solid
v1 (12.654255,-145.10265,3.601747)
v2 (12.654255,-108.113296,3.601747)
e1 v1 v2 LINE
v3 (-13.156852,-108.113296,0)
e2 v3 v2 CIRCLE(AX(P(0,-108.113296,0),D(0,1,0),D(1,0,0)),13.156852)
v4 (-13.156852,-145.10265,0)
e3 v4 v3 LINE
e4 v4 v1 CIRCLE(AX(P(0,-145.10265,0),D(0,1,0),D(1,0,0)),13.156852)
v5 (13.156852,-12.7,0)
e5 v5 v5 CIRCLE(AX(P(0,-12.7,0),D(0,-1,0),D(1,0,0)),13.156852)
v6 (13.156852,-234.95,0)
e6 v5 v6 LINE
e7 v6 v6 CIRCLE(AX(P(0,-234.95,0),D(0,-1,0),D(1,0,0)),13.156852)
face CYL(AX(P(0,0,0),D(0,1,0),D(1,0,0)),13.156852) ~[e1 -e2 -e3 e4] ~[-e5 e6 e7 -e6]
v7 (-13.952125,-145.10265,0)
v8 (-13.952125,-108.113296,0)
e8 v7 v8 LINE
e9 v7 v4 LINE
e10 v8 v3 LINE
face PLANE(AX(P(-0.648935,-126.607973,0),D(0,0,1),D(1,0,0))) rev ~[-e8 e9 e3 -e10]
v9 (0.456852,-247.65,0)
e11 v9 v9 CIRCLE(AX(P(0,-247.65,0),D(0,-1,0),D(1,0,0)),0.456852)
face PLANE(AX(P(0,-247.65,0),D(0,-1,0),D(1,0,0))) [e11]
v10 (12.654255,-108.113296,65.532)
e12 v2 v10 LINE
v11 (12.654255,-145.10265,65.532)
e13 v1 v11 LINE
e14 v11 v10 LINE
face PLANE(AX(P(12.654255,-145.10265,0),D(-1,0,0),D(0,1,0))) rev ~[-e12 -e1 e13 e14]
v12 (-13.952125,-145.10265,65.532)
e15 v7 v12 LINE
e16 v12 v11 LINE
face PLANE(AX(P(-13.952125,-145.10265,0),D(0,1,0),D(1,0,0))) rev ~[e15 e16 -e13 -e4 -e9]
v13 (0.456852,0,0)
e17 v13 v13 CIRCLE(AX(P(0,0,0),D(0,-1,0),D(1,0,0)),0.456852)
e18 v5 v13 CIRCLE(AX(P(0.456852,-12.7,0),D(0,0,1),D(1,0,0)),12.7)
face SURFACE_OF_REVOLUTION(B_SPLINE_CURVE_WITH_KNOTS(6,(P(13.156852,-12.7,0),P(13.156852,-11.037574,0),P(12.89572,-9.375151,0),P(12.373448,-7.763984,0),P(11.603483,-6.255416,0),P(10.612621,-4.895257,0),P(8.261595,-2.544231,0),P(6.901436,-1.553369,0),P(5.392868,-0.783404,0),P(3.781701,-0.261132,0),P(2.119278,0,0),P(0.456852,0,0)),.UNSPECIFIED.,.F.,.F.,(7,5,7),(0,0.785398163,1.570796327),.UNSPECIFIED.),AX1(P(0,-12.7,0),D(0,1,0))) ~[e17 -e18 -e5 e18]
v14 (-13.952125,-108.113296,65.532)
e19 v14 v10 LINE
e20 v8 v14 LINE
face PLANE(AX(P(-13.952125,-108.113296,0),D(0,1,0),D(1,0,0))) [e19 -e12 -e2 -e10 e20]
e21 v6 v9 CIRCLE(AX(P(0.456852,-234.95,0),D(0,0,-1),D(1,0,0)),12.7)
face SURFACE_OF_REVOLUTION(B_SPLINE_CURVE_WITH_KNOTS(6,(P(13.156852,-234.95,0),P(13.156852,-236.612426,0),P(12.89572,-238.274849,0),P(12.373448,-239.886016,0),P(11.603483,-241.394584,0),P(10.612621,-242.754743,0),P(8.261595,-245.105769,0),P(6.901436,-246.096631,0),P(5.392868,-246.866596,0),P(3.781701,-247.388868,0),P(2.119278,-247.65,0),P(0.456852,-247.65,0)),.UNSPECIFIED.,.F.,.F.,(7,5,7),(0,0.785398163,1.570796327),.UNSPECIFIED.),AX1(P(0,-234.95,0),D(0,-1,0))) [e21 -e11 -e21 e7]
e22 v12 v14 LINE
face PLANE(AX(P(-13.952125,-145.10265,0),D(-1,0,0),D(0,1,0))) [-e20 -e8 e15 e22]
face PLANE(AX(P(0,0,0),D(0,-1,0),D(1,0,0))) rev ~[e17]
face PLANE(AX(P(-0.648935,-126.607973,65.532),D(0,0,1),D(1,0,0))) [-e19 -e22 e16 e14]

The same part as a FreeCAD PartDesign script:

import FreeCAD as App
import Part
import Sketcher

V = App.Vector
Q = App.Units.Quantity


def edges_at(feature, points):
    """Names of the edges that pass closest to the given points."""
    edges = feature.Shape.Edges
    near = lambda p: min(range(len(edges)), key=lambda i: edges[i].distToShape(Part.Vertex(*p))[0])
    return sorted({f"Edge{near(p) + 1}" for p in points})


def add_polygon(sketch, points):
    """Adds a closed chain of lines whose ends are joined by coincident constraints."""
    first, n = sketch.GeometryCount, len(points)
    for a, b in zip(points, points[1:] + points[:1]):
        sketch.addGeometry(Part.LineSegment(App.Vector(*a, 0), App.Vector(*b, 0)), False)
    for i in range(n):
        sketch.addConstraint(Sketcher.Constraint("Coincident", first + i, 2, first + (i + 1) % n, 1))

doc = App.newDocument("Part")
body = doc.addObject("PartDesign::Body", "Body")

sketch1 = body.newObject("Sketcher::SketchObject", "Sketch")
sketch1.AttachmentSupport = (doc.getObject("XZ_Plane"), [""])
sketch1.MapMode = "FlatFace"
sketch1.addGeometry(Part.Circle(V(0, 0, 0), V(0, 0, 1), 13), False)
sketch1.addConstraint([
    Sketcher.Constraint("Coincident", 0, 3, -1, 1),
    Sketcher.Constraint("Diameter", 0, Q("26.313704 mm")),
])
pad1 = body.newObject("PartDesign::Pad", "Pad")
pad1.Profile = sketch1
pad1.Length = Q("9.75 in")

sketch2 = body.newObject("Sketcher::SketchObject", "Sketch001")
sketch2.AttachmentSupport = (doc.getObject("XY_Plane"), [""])
sketch2.MapMode = "FlatFace"
add_polygon(sketch2, [(-14, -108), (-14, -145), (13, -145), (13, -108)])
sketch2.addConstraint([
    Sketcher.Constraint("Vertical", 0),
    Sketcher.Constraint("Horizontal", 1),
    Sketcher.Constraint("Vertical", 2),
    Sketcher.Constraint("Horizontal", 3),
    Sketcher.Constraint("DistanceX", 1, 1, 1, 2, Q("26.60638 mm")),
    Sketcher.Constraint("DistanceY", 0, 2, 0, 1, Q("36.989354 mm")),
    Sketcher.Constraint("DistanceY", 0, 2, -1, 1, Q("145.10265 mm")),
    Sketcher.Constraint("DistanceX", 0, 2, -1, 1, Q("13.952125 mm")),
])
pad2 = body.newObject("PartDesign::Pad", "Pad001")
pad2.Profile = sketch2
pad2.Length = Q("2.58 in")
doc.recompute()

fillet = body.newObject("PartDesign::Fillet", "Fillet")
fillet.Base = (pad2, edges_at(pad2, [(-13.157, -247.65, 0)]))
fillet.Radius = Q("0.5 in")
doc.recompute()

fillet2 = body.newObject("PartDesign::Fillet", "Fillet001")
fillet2.Base = (fillet, edges_at(fillet, [(-13.157, 0, 0)]))
fillet2.Radius = Q("0.5 in")

sketch3 = body.newObject("Sketcher::SketchObject", "Sketch002")
sketch3.AttachmentSupport = (doc.getObject("YZ_Plane"), [""])
sketch3.MapMode = "FlatFace"
add_polygon(sketch3, [(-230, 4), (-230, -4), (-16, -4), (-16, 4)])
sketch3.addConstraint([
    Sketcher.Constraint("Vertical", 0),
    Sketcher.Constraint("Horizontal", 1),
    Sketcher.Constraint("Vertical", 2),
    Sketcher.Constraint("Horizontal", 3),
    Sketcher.Constraint("DistanceX", 1, 1, 1, 2, Q("214.072559 mm")),
    Sketcher.Constraint("DistanceY", 0, 2, 0, 1, Q("7.634542 mm")),
    Sketcher.Constraint("DistanceY", 0, 2, -1, 1, Q("3.817271 mm")),
    Sketcher.Constraint("DistanceX", 0, 2, -1, 1, Q("230.323225 mm")),
])
pad3 = body.newObject("PartDesign::Pad", "Pad002")
pad3.Profile = sketch3
pad3.Length = Q("0.45 in")
pad3.Reversed = True

sketch4 = body.newObject("Sketcher::SketchObject", "Sketch003")
sketch4.AttachmentSupport = (doc.getObject("YZ_Plane"), [""])
sketch4.MapMode = "FlatFace"
add_polygon(sketch4, [(-233, 3), (-233, -4), (-17, -4), (-17, 3)])
sketch4.addConstraint([
    Sketcher.Constraint("Vertical", 0),
    Sketcher.Constraint("Horizontal", 1),
    Sketcher.Constraint("Vertical", 2),
    Sketcher.Constraint("Horizontal", 3),
    Sketcher.Constraint("DistanceX", 1, 1, 1, 2, Q("8.4966002 in")),
    Sketcher.Constraint("DistanceY", 0, 2, 0, 1, Q("0.2856 in")),
    Sketcher.Constraint("DistanceX", 1, 2, -1, 1, Q("16.696371 mm")),
    Sketcher.Constraint("DistanceY", 0, 2, -1, 1, Q("4.193856 mm")),
])
pad4 = body.newObject("PartDesign::Pad", "Pad003")
pad4.Profile = sketch4
pad4.Length = Q("0.35 in")

doc.recompute()
